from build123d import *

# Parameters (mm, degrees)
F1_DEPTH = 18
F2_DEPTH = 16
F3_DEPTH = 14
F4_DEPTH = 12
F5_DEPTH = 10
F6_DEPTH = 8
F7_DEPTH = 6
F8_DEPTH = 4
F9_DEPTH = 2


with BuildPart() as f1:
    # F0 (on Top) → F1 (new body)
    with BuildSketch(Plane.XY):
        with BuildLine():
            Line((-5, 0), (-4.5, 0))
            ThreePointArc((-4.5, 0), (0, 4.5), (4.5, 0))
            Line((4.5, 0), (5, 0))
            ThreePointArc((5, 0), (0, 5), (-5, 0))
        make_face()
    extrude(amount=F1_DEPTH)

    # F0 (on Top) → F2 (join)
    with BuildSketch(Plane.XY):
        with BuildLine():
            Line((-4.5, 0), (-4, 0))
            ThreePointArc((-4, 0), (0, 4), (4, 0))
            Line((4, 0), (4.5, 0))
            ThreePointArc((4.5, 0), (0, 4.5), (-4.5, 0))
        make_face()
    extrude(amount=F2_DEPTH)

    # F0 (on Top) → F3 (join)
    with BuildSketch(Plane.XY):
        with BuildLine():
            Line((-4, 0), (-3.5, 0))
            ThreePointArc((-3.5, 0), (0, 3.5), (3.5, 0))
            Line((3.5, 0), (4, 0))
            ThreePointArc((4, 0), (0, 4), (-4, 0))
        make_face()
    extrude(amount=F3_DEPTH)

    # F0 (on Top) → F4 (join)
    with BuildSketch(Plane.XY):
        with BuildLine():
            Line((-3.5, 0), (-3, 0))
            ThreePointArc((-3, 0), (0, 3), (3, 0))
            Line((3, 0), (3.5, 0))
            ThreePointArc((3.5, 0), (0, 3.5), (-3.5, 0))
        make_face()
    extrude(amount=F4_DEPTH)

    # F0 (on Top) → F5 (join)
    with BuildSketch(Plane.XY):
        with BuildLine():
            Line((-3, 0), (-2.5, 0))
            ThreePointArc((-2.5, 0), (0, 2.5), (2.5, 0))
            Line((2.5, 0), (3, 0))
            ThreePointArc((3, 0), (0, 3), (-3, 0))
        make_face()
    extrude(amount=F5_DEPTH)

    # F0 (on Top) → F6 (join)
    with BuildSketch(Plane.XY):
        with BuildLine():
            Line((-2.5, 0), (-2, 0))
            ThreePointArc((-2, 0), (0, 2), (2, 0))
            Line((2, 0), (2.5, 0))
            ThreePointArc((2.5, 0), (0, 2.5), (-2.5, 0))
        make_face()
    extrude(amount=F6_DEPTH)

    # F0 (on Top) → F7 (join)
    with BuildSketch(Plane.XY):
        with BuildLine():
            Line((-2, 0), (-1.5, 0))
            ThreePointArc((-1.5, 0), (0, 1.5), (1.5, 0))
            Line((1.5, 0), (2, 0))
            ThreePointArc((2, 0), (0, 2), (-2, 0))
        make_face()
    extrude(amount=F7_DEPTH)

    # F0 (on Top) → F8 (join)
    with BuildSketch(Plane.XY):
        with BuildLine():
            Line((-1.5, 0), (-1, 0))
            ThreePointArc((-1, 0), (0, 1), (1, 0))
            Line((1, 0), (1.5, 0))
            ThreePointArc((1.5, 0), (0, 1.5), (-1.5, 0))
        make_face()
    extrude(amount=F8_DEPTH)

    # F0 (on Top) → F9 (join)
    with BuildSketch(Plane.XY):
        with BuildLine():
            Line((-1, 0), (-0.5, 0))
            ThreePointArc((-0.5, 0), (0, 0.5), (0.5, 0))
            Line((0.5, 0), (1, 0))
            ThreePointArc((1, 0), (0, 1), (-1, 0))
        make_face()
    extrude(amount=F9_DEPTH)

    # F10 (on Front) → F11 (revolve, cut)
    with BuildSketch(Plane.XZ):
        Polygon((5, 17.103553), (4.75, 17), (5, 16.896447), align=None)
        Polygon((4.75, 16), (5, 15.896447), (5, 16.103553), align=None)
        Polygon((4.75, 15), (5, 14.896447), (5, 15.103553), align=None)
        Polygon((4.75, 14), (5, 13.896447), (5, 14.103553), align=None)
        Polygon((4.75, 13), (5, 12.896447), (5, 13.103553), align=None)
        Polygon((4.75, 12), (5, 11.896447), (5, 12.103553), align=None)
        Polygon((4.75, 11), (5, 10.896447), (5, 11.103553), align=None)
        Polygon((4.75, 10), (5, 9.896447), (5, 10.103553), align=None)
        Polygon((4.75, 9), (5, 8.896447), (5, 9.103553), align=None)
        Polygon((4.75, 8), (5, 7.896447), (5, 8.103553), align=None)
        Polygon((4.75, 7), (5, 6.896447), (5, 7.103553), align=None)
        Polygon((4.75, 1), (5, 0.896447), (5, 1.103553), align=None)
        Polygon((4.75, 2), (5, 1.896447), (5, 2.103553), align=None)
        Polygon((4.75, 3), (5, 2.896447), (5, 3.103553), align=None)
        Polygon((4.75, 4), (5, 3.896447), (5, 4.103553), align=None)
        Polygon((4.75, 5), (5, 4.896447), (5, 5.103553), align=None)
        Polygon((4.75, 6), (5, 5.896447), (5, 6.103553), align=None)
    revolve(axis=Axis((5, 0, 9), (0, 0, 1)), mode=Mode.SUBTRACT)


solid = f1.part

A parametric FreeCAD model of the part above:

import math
import FreeCAD as App
import Part
import Sketcher
from FreeCAD import Vector
Q = App.Units.Quantity

doc = App.newDocument("Part")
body = doc.addObject("PartDesign::Body", "Body")

# Sketch on XY plane
sketch1 = body.newObject("Sketcher::SketchObject", "Sketch")
sketch1.AttachmentSupport = (doc.getObject("XY_Plane"), [""])
sketch1.MapMode = "FlatFace"
sketch1.addGeometry(Part.LineSegment(Vector(-5, 0, 0), Vector(-4.5, 0, 0)), False)
sketch1.addGeometry(Part.ArcOfCircle(Part.Circle(Vector(0, 0, 0), Vector(0, 0, 1), 4.5), math.radians(0), math.radians(180)), False)
sketch1.addGeometry(Part.LineSegment(Vector(4.5, 0, 0), Vector(5, 0, 0)), False)
sketch1.addGeometry(Part.ArcOfCircle(Part.Circle(Vector(0, 0, 0), Vector(0, 0, 1), 5), math.radians(0), math.radians(180)), False)
sketch1.addConstraint(Sketcher.Constraint("Coincident", 0, 2, 1, 2))
sketch1.addConstraint(Sketcher.Constraint("Coincident", 1, 1, 2, 1))
sketch1.addConstraint(Sketcher.Constraint("Coincident", 2, 2, 3, 1))
sketch1.addConstraint(Sketcher.Constraint("Coincident", 3, 2, 0, 1))
sketch1.addConstraint(Sketcher.Constraint("Horizontal", 0))
sketch1.addConstraint(Sketcher.Constraint("Horizontal", 2))
sketch1.addConstraint(Sketcher.Constraint("Coincident", 1, 3, -1, 1))
sketch1.addConstraint(Sketcher.Constraint("Coincident", 3, 3, -1, 1))
sketch1.addConstraint(Sketcher.Constraint("PointOnObject", 0, 2, -1))
sketch1.addConstraint(Sketcher.Constraint("PointOnObject", 1, 1, -1))
sketch1.addConstraint(Sketcher.Constraint("Radius", 3, Q("5 mm")))
sketch1.addConstraint(Sketcher.Constraint("Radius", 1, Q("4.5 mm")))
pad1 = body.newObject("PartDesign::Pad", "Pad")
pad1.Profile = sketch1
pad1.Length = 18

# Sketch on XY plane
sketch2 = body.newObject("Sketcher::SketchObject", "Sketch001")
sketch2.AttachmentSupport = (doc.getObject("XY_Plane"), [""])
sketch2.MapMode = "FlatFace"
sketch2.addGeometry(Part.LineSegment(Vector(-4.5, 0, 0), Vector(-4, 0, 0)), False)
sketch2.addGeometry(Part.ArcOfCircle(Part.Circle(Vector(0, 0, 0), Vector(0, 0, 1), 4), math.radians(0), math.radians(180)), False)
sketch2.addGeometry(Part.LineSegment(Vector(4, 0, 0), Vector(4.5, 0, 0)), False)
sketch2.addGeometry(Part.ArcOfCircle(Part.Circle(Vector(0, 0, 0), Vector(0, 0, 1), 4.5), math.radians(0), math.radians(180)), False)
sketch2.addConstraint(Sketcher.Constraint("Coincident", 0, 2, 1, 2))
sketch2.addConstraint(Sketcher.Constraint("Coincident", 1, 1, 2, 1))
sketch2.addConstraint(Sketcher.Constraint("Coincident", 2, 2, 3, 1))
sketch2.addConstraint(Sketcher.Constraint("Coincident", 3, 2, 0, 1))
sketch2.addConstraint(Sketcher.Constraint("Horizontal", 0))
sketch2.addConstraint(Sketcher.Constraint("Horizontal", 2))
sketch2.addConstraint(Sketcher.Constraint("Coincident", 1, 3, -1, 1))
sketch2.addConstraint(Sketcher.Constraint("Coincident", 3, 3, -1, 1))
sketch2.addConstraint(Sketcher.Constraint("PointOnObject", 0, 2, -1))
sketch2.addConstraint(Sketcher.Constraint("PointOnObject", 1, 1, -1))
sketch2.addConstraint(Sketcher.Constraint("Radius", 1, Q("4 mm")))
sketch2.addConstraint(Sketcher.Constraint("Radius", 3, Q("4.5 mm")))
pad2 = body.newObject("PartDesign::Pad", "Pad001")
pad2.Profile = sketch2
pad2.Length = 16

# Sketch on XY plane
sketch3 = body.newObject("Sketcher::SketchObject", "Sketch002")
sketch3.AttachmentSupport = (doc.getObject("XY_Plane"), [""])
sketch3.MapMode = "FlatFace"
sketch3.addGeometry(Part.LineSegment(Vector(-4, 0, 0), Vector(-3.5, 0, 0)), False)
sketch3.addGeometry(Part.ArcOfCircle(Part.Circle(Vector(0, 0, 0), Vector(0, 0, 1), 3.5), math.radians(0), math.radians(180)), False)
sketch3.addGeometry(Part.LineSegment(Vector(3.5, 0, 0), Vector(4, 0, 0)), False)
sketch3.addGeometry(Part.ArcOfCircle(Part.Circle(Vector(0, 0, 0), Vector(0, 0, 1), 4), math.radians(0), math.radians(180)), False)
sketch3.addConstraint(Sketcher.Constraint("Coincident", 0, 2, 1, 2))
sketch3.addConstraint(Sketcher.Constraint("Coincident", 1, 1, 2, 1))
sketch3.addConstraint(Sketcher.Constraint("Coincident", 2, 2, 3, 1))
sketch3.addConstraint(Sketcher.Constraint("Coincident", 3, 2, 0, 1))
sketch3.addConstraint(Sketcher.Constraint("Horizontal", 0))
sketch3.addConstraint(Sketcher.Constraint("Horizontal", 2))
sketch3.addConstraint(Sketcher.Constraint("Coincident", 1, 3, -1, 1))
sketch3.addConstraint(Sketcher.Constraint("Coincident", 3, 3, -1, 1))
sketch3.addConstraint(Sketcher.Constraint("PointOnObject", 0, 2, -1))
sketch3.addConstraint(Sketcher.Constraint("PointOnObject", 1, 1, -1))
sketch3.addConstraint(Sketcher.Constraint("Radius", 3, Q("4 mm")))
sketch3.addConstraint(Sketcher.Constraint("Radius", 1, Q("3.5 mm")))
pad3 = body.newObject("PartDesign::Pad", "Pad002")
pad3.Profile = sketch3
pad3.Length = 14

# Sketch on XY plane
sketch4 = body.newObject("Sketcher::SketchObject", "Sketch003")
sketch4.AttachmentSupport = (doc.getObject("XY_Plane"), [""])
sketch4.MapMode = "FlatFace"
sketch4.addGeometry(Part.LineSegment(Vector(-3.5, 0, 0), Vector(-3, 0, 0)), False)
sketch4.addGeometry(Part.ArcOfCircle(Part.Circle(Vector(0, 0, 0), Vector(0, 0, 1), 3), math.radians(0), math.radians(180)), False)
sketch4.addGeometry(Part.LineSegment(Vector(3, 0, 0), Vector(3.5, 0, 0)), False)
sketch4.addGeometry(Part.ArcOfCircle(Part.Circle(Vector(0, 0, 0), Vector(0, 0, 1), 3.5), math.radians(0), math.radians(180)), False)
sketch4.addConstraint(Sketcher.Constraint("Coincident", 0, 2, 1, 2))
sketch4.addConstraint(Sketcher.Constraint("Coincident", 1, 1, 2, 1))
sketch4.addConstraint(Sketcher.Constraint("Coincident", 2, 2, 3, 1))
sketch4.addConstraint(Sketcher.Constraint("Coincident", 3, 2, 0, 1))
sketch4.addConstraint(Sketcher.Constraint("Horizontal", 0))
sketch4.addConstraint(Sketcher.Constraint("Horizontal", 2))
sketch4.addConstraint(Sketcher.Constraint("Coincident", 1, 3, -1, 1))
sketch4.addConstraint(Sketcher.Constraint("Coincident", 3, 3, -1, 1))
sketch4.addConstraint(Sketcher.Constraint("PointOnObject", 0, 2, -1))
sketch4.addConstraint(Sketcher.Constraint("PointOnObject", 1, 1, -1))
sketch4.addConstraint(Sketcher.Constraint("Radius", 1, Q("3 mm")))
sketch4.addConstraint(Sketcher.Constraint("Radius", 3, Q("3.5 mm")))
pad4 = body.newObject("PartDesign::Pad", "Pad003")
pad4.Profile = sketch4
pad4.Length = 12

# Sketch on XY plane
sketch5 = body.newObject("Sketcher::SketchObject", "Sketch004")
sketch5.AttachmentSupport = (doc.getObject("XY_Plane"), [""])
sketch5.MapMode = "FlatFace"
sketch5.addGeometry(Part.LineSegment(Vector(-3, 0, 0), Vector(-2.5, 0, 0)), False)
sketch5.addGeometry(Part.ArcOfCircle(Part.Circle(Vector(0, 0, 0), Vector(0, 0, 1), 2.5), math.radians(0), math.radians(180)), False)
sketch5.addGeometry(Part.LineSegment(Vector(2.5, 0, 0), Vector(3, 0, 0)), False)
sketch5.addGeometry(Part.ArcOfCircle(Part.Circle(Vector(0, 0, 0), Vector(0, 0, 1), 3), math.radians(0), math.radians(180)), False)
sketch5.addConstraint(Sketcher.Constraint("Coincident", 0, 2, 1, 2))
sketch5.addConstraint(Sketcher.Constraint("Coincident", 1, 1, 2, 1))
sketch5.addConstraint(Sketcher.Constraint("Coincident", 2, 2, 3, 1))
sketch5.addConstraint(Sketcher.Constraint("Coincident", 3, 2, 0, 1))
sketch5.addConstraint(Sketcher.Constraint("Horizontal", 0))
sketch5.addConstraint(Sketcher.Constraint("Horizontal", 2))
sketch5.addConstraint(Sketcher.Constraint("Coincident", 1, 3, -1, 1))
sketch5.addConstraint(Sketcher.Constraint("Coincident", 3, 3, -1, 1))
sketch5.addConstraint(Sketcher.Constraint("PointOnObject", 0, 2, -1))
sketch5.addConstraint(Sketcher.Constraint("PointOnObject", 1, 1, -1))
sketch5.addConstraint(Sketcher.Constraint("Radius", 3, Q("3 mm")))
sketch5.addConstraint(Sketcher.Constraint("Radius", 1, Q("2.5 mm")))
pad5 = body.newObject("PartDesign::Pad", "Pad004")
pad5.Profile = sketch5
pad5.Length = 10

# Sketch on XY plane
sketch6 = body.newObject("Sketcher::SketchObject", "Sketch005")
sketch6.AttachmentSupport = (doc.getObject("XY_Plane"), [""])
sketch6.MapMode = "FlatFace"
sketch6.addGeometry(Part.LineSegment(Vector(-2.5, 0, 0), Vector(-2, 0, 0)), False)
sketch6.addGeometry(Part.ArcOfCircle(Part.Circle(Vector(0, 0, 0), Vector(0, 0, 1), 2), math.radians(0), math.radians(180)), False)
sketch6.addGeometry(Part.LineSegment(Vector(2, 0, 0), Vector(2.5, 0, 0)), False)
sketch6.addGeometry(Part.ArcOfCircle(Part.Circle(Vector(0, 0, 0), Vector(0, 0, 1), 2.5), math.radians(0), math.radians(180)), False)
sketch6.addConstraint(Sketcher.Constraint("Coincident", 0, 2, 1, 2))
sketch6.addConstraint(Sketcher.Constraint("Coincident", 1, 1, 2, 1))
sketch6.addConstraint(Sketcher.Constraint("Coincident", 2, 2, 3, 1))
sketch6.addConstraint(Sketcher.Constraint("Coincident", 3, 2, 0, 1))
sketch6.addConstraint(Sketcher.Constraint("Horizontal", 0))
sketch6.addConstraint(Sketcher.Constraint("Horizontal", 2))
sketch6.addConstraint(Sketcher.Constraint("Coincident", 1, 3, -1, 1))
sketch6.addConstraint(Sketcher.Constraint("Coincident", 3, 3, -1, 1))
sketch6.addConstraint(Sketcher.Constraint("PointOnObject", 0, 2, -1))
sketch6.addConstraint(Sketcher.Constraint("PointOnObject", 1, 1, -1))
sketch6.addConstraint(Sketcher.Constraint("Radius", 1, Q("2 mm")))
sketch6.addConstraint(Sketcher.Constraint("Radius", 3, Q("2.5 mm")))
pad6 = body.newObject("PartDesign::Pad", "Pad005")
pad6.Profile = sketch6
pad6.Length = 8

# Sketch on XY plane
sketch7 = body.newObject("Sketcher::SketchObject", "Sketch006")
sketch7.AttachmentSupport = (doc.getObject("XY_Plane"), [""])
sketch7.MapMode = "FlatFace"
sketch7.addGeometry(Part.LineSegment(Vector(-2, 0, 0), Vector(-1.5, 0, 0)), False)
sketch7.addGeometry(Part.ArcOfCircle(Part.Circle(Vector(0, 0, 0), Vector(0, 0, 1), 1.5), math.radians(0), math.radians(180)), False)
sketch7.addGeometry(Part.LineSegment(Vector(1.5, 0, 0), Vector(2, 0, 0)), False)
sketch7.addGeometry(Part.ArcOfCircle(Part.Circle(Vector(0, 0, 0), Vector(0, 0, 1), 2), math.radians(0), math.radians(180)), False)
sketch7.addConstraint(Sketcher.Constraint("Coincident", 0, 2, 1, 2))
sketch7.addConstraint(Sketcher.Constraint("Coincident", 1, 1, 2, 1))
sketch7.addConstraint(Sketcher.Constraint("Coincident", 2, 2, 3, 1))
sketch7.addConstraint(Sketcher.Constraint("Coincident", 3, 2, 0, 1))
sketch7.addConstraint(Sketcher.Constraint("Horizontal", 0))
sketch7.addConstraint(Sketcher.Constraint("Horizontal", 2))
sketch7.addConstraint(Sketcher.Constraint("Coincident", 1, 3, -1, 1))
sketch7.addConstraint(Sketcher.Constraint("Coincident", 3, 3, -1, 1))
sketch7.addConstraint(Sketcher.Constraint("PointOnObject", 0, 2, -1))
sketch7.addConstraint(Sketcher.Constraint("PointOnObject", 1, 1, -1))
sketch7.addConstraint(Sketcher.Constraint("Radius", 3, Q("2 mm")))
sketch7.addConstraint(Sketcher.Constraint("Radius", 1, Q("1.5 mm")))
pad7 = body.newObject("PartDesign::Pad", "Pad006")
pad7.Profile = sketch7
pad7.Length = 6

# Sketch on XY plane
sketch8 = body.newObject("Sketcher::SketchObject", "Sketch007")
sketch8.AttachmentSupport = (doc.getObject("XY_Plane"), [""])
sketch8.MapMode = "FlatFace"
sketch8.addGeometry(Part.LineSegment(Vector(-1.5, 0, 0), Vector(-1, 0, 0)), False)
sketch8.addGeometry(Part.ArcOfCircle(Part.Circle(Vector(0, 0, 0), Vector(0, 0, 1), 1), math.radians(0), math.radians(180)), False)
sketch8.addGeometry(Part.LineSegment(Vector(1, 0, 0), Vector(1.5, 0, 0)), False)
sketch8.addGeometry(Part.ArcOfCircle(Part.Circle(Vector(0, 0, 0), Vector(0, 0, 1), 1.5), math.radians(0), math.radians(180)), False)
sketch8.addConstraint(Sketcher.Constraint("Coincident", 0, 2, 1, 2))
sketch8.addConstraint(Sketcher.Constraint("Coincident", 1, 1, 2, 1))
sketch8.addConstraint(Sketcher.Constraint("Coincident", 2, 2, 3, 1))
sketch8.addConstraint(Sketcher.Constraint("Coincident", 3, 2, 0, 1))
sketch8.addConstraint(Sketcher.Constraint("Horizontal", 0))
sketch8.addConstraint(Sketcher.Constraint("Horizontal", 2))
sketch8.addConstraint(Sketcher.Constraint("Coincident", 1, 3, -1, 1))
sketch8.addConstraint(Sketcher.Constraint("Coincident", 3, 3, -1, 1))
sketch8.addConstraint(Sketcher.Constraint("PointOnObject", 0, 2, -1))
sketch8.addConstraint(Sketcher.Constraint("PointOnObject", 1, 1, -1))
sketch8.addConstraint(Sketcher.Constraint("Radius", 1, Q("1 mm")))
sketch8.addConstraint(Sketcher.Constraint("Radius", 3, Q("1.5 mm")))
pad8 = body.newObject("PartDesign::Pad", "Pad007")
pad8.Profile = sketch8
pad8.Length = 4

# Sketch on XY plane
sketch9 = body.newObject("Sketcher::SketchObject", "Sketch008")
sketch9.AttachmentSupport = (doc.getObject("XY_Plane"), [""])
sketch9.MapMode = "FlatFace"
sketch9.addGeometry(Part.LineSegment(Vector(-1, 0, 0), Vector(-0.5, 0, 0)), False)
sketch9.addGeometry(Part.ArcOfCircle(Part.Circle(Vector(0, 0, 0), Vector(0, 0, 1), 0.5), math.radians(0), math.radians(180)), False)
sketch9.addGeometry(Part.LineSegment(Vector(0.5, 0, 0), Vector(1, 0, 0)), False)
sketch9.addGeometry(Part.ArcOfCircle(Part.Circle(Vector(0, 0, 0), Vector(0, 0, 1), 1), math.radians(0), math.radians(180)), False)
sketch9.addConstraint(Sketcher.Constraint("Coincident", 0, 2, 1, 2))
sketch9.addConstraint(Sketcher.Constraint("Coincident", 1, 1, 2, 1))
sketch9.addConstraint(Sketcher.Constraint("Coincident", 2, 2, 3, 1))
sketch9.addConstraint(Sketcher.Constraint("Coincident", 3, 2, 0, 1))
sketch9.addConstraint(Sketcher.Constraint("Horizontal", 0))
sketch9.addConstraint(Sketcher.Constraint("Horizontal", 2))
sketch9.addConstraint(Sketcher.Constraint("Coincident", 1, 3, -1, 1))
sketch9.addConstraint(Sketcher.Constraint("Coincident", 3, 3, -1, 1))
sketch9.addConstraint(Sketcher.Constraint("PointOnObject", 0, 2, -1))
sketch9.addConstraint(Sketcher.Constraint("PointOnObject", 1, 1, -1))
sketch9.addConstraint(Sketcher.Constraint("Radius", 3, Q("1 mm")))
sketch9.addConstraint(Sketcher.Constraint("Radius", 1, Q("0.5 mm")))
pad9 = body.newObject("PartDesign::Pad", "Pad008")
pad9.Profile = sketch9
pad9.Length = 2

# Sketch on XZ plane
sketch10 = body.newObject("Sketcher::SketchObject", "Sketch009")
sketch10.AttachmentSupport = (doc.getObject("XZ_Plane"), [""])
sketch10.MapMode = "FlatFace"
sketch10.addGeometry(Part.LineSegment(Vector(5, 17.1, 0), Vector(4.75, 17, 0)), False)
sketch10.addGeometry(Part.LineSegment(Vector(4.75, 17, 0), Vector(5, 16.9, 0)), False)
sketch10.addGeometry(Part.LineSegment(Vector(5, 16.9, 0), Vector(5, 17.1, 0)), False)
sketch10.addGeometry(Part.LineSegment(Vector(4.75, 16, 0), Vector(5, 15.9, 0)), False)
sketch10.addGeometry(Part.LineSegment(Vector(5, 15.9, 0), Vector(5, 16.1, 0)), False)
sketch10.addGeometry(Part.LineSegment(Vector(5, 16.1, 0), Vector(4.75, 16, 0)), False)
sketch10.addGeometry(Part.LineSegment(Vector(4.75, 15, 0), Vector(5, 14.9, 0)), False)
sketch10.addGeometry(Part.LineSegment(Vector(5, 14.9, 0), Vector(5, 15.1, 0)), False)
sketch10.addGeometry(Part.LineSegment(Vector(5, 15.1, 0), Vector(4.75, 15, 0)), False)
sketch10.addGeometry(Part.LineSegment(Vector(4.75, 14, 0), Vector(5, 13.9, 0)), False)
sketch10.addGeometry(Part.LineSegment(Vector(5, 13.9, 0), Vector(5, 14.1, 0)), False)
sketch10.addGeometry(Part.LineSegment(Vector(5, 14.1, 0), Vector(4.75, 14, 0)), False)
sketch10.addGeometry(Part.LineSegment(Vector(4.75, 13, 0), Vector(5, 12.9, 0)), False)
sketch10.addGeometry(Part.LineSegment(Vector(5, 12.9, 0), Vector(5, 13.1, 0)), False)
sketch10.addGeometry(Part.LineSegment(Vector(5, 13.1, 0), Vector(4.75, 13, 0)), False)
sketch10.addGeometry(Part.LineSegment(Vector(4.75, 12, 0), Vector(5, 11.9, 0)), False)
sketch10.addGeometry(Part.LineSegment(Vector(5, 11.9, 0), Vector(5, 12.1, 0)), False)
sketch10.addGeometry(Part.LineSegment(Vector(5, 12.1, 0), Vector(4.75, 12, 0)), False)
sketch10.addGeometry(Part.LineSegment(Vector(4.75, 11, 0), Vector(5, 10.9, 0)), False)
sketch10.addGeometry(Part.LineSegment(Vector(5, 10.9, 0), Vector(5, 11.1, 0)), False)
sketch10.addGeometry(Part.LineSegment(Vector(5, 11.1, 0), Vector(4.75, 11, 0)), False)
sketch10.addGeometry(Part.LineSegment(Vector(4.75, 10, 0), Vector(5, 9.9, 0)), False)
sketch10.addGeometry(Part.LineSegment(Vector(5, 9.9, 0), Vector(5, 10.1, 0)), False)
sketch10.addGeometry(Part.LineSegment(Vector(5, 10.1, 0), Vector(4.75, 10, 0)), False)
sketch10.addGeometry(Part.LineSegment(Vector(4.75, 9, 0), Vector(5, 8.9, 0)), False)
sketch10.addGeometry(Part.LineSegment(Vector(5, 8.9, 0), Vector(5, 9.1, 0)), False)
sketch10.addGeometry(Part.LineSegment(Vector(5, 9.1, 0), Vector(4.75, 9, 0)), False)
sketch10.addGeometry(Part.LineSegment(Vector(4.75, 8, 0), Vector(5, 7.9, 0)), False)
sketch10.addGeometry(Part.LineSegment(Vector(5, 7.9, 0), Vector(5, 8.1, 0)), False)
sketch10.addGeometry(Part.LineSegment(Vector(5, 8.1, 0), Vector(4.75, 8, 0)), False)
sketch10.addGeometry(Part.LineSegment(Vector(4.75, 7, 0), Vector(5, 6.9, 0)), False)
sketch10.addGeometry(Part.LineSegment(Vector(5, 6.9, 0), Vector(5, 7.1, 0)), False)
sketch10.addGeometry(Part.LineSegment(Vector(5, 7.1, 0), Vector(4.75, 7, 0)), False)
sketch10.addGeometry(Part.LineSegment(Vector(4.75, 1, 0), Vector(5, 0.9, 0)), False)
sketch10.addGeometry(Part.LineSegment(Vector(5, 0.9, 0), Vector(5, 1.1, 0)), False)
sketch10.addGeometry(Part.LineSegment(Vector(5, 1.1, 0), Vector(4.75, 1, 0)), False)
sketch10.addGeometry(Part.LineSegment(Vector(4.75, 2, 0), Vector(5, 1.9, 0)), False)
sketch10.addGeometry(Part.LineSegment(Vector(5, 1.9, 0), Vector(5, 2.1, 0)), False)
sketch10.addGeometry(Part.LineSegment(Vector(5, 2.1, 0), Vector(4.75, 2, 0)), False)
sketch10.addGeometry(Part.LineSegment(Vector(4.75, 3, 0), Vector(5, 2.9, 0)), False)
sketch10.addGeometry(Part.LineSegment(Vector(5, 2.9, 0), Vector(5, 3.1, 0)), False)
sketch10.addGeometry(Part.LineSegment(Vector(5, 3.1, 0), Vector(4.75, 3, 0)), False)
sketch10.addGeometry(Part.LineSegment(Vector(4.75, 4, 0), Vector(5, 3.9, 0)), False)
sketch10.addGeometry(Part.LineSegment(Vector(5, 3.9, 0), Vector(5, 4.1, 0)), False)
sketch10.addGeometry(Part.LineSegment(Vector(5, 4.1, 0), Vector(4.75, 4, 0)), False)
sketch10.addGeometry(Part.LineSegment(Vector(4.75, 5, 0), Vector(5, 4.9, 0)), False)
sketch10.addGeometry(Part.LineSegment(Vector(5, 4.9, 0), Vector(5, 5.1, 0)), False)
sketch10.addGeometry(Part.LineSegment(Vector(5, 5.1, 0), Vector(4.75, 5, 0)), False)
sketch10.addGeometry(Part.LineSegment(Vector(4.75, 6, 0), Vector(5, 5.9, 0)), False)
sketch10.addGeometry(Part.LineSegment(Vector(5, 5.9, 0), Vector(5, 6.1, 0)), False)
sketch10.addGeometry(Part.LineSegment(Vector(5, 6.1, 0), Vector(4.75, 6, 0)), False)
sketch10.addGeometry(Part.LineSegment(Vector(5, 0.9, 0), Vector(5, 17.1, 0)), True)  # axis
sketch10.addConstraint(Sketcher.Constraint("Coincident", 0, 2, 1, 1))
sketch10.addConstraint(Sketcher.Constraint("Coincident", 1, 2, 2, 1))
sketch10.addConstraint(Sketcher.Constraint("Coincident", 2, 2, 0, 1))
sketch10.addConstraint(Sketcher.Constraint("Coincident", 3, 2, 4, 1))
sketch10.addConstraint(Sketcher.Constraint("Coincident", 4, 2, 5, 1))
sketch10.addConstraint(Sketcher.Constraint("Coincident", 5, 2, 3, 1))
sketch10.addConstraint(Sketcher.Constraint("Coincident", 6, 2, 7, 1))
sketch10.addConstraint(Sketcher.Constraint("Coincident", 7, 2, 8, 1))
sketch10.addConstraint(Sketcher.Constraint("Coincident", 8, 2, 6, 1))
sketch10.addConstraint(Sketcher.Constraint("Coincident", 9, 2, 10, 1))
sketch10.addConstraint(Sketcher.Constraint("Coincident", 10, 2, 11, 1))
sketch10.addConstraint(Sketcher.Constraint("Coincident", 11, 2, 9, 1))
sketch10.addConstraint(Sketcher.Constraint("Coincident", 12, 2, 13, 1))
sketch10.addConstraint(Sketcher.Constraint("Coincident", 13, 2, 14, 1))
sketch10.addConstraint(Sketcher.Constraint("Coincident", 14, 2, 12, 1))
sketch10.addConstraint(Sketcher.Constraint("Coincident", 15, 2, 16, 1))
sketch10.addConstraint(Sketcher.Constraint("Coincident", 16, 2, 17, 1))
sketch10.addConstraint(Sketcher.Constraint("Coincident", 17, 2, 15, 1))
sketch10.addConstraint(Sketcher.Constraint("Coincident", 18, 2, 19, 1))
sketch10.addConstraint(Sketcher.Constraint("Coincident", 19, 2, 20, 1))
sketch10.addConstraint(Sketcher.Constraint("Coincident", 20, 2, 18, 1))
sketch10.addConstraint(Sketcher.Constraint("Coincident", 21, 2, 22, 1))
sketch10.addConstraint(Sketcher.Constraint("Coincident", 22, 2, 23, 1))
sketch10.addConstraint(Sketcher.Constraint("Coincident", 23, 2, 21, 1))
sketch10.addConstraint(Sketcher.Constraint("Coincident", 24, 2, 25, 1))
sketch10.addConstraint(Sketcher.Constraint("Coincident", 25, 2, 26, 1))
sketch10.addConstraint(Sketcher.Constraint("Coincident", 26, 2, 24, 1))
sketch10.addConstraint(Sketcher.Constraint("Coincident", 27, 2, 28, 1))
sketch10.addConstraint(Sketcher.Constraint("Coincident", 28, 2, 29, 1))
sketch10.addConstraint(Sketcher.Constraint("Coincident", 29, 2, 27, 1))
sketch10.addConstraint(Sketcher.Constraint("Coincident", 30, 2, 31, 1))
sketch10.addConstraint(Sketcher.Constraint("Coincident", 31, 2, 32, 1))
sketch10.addConstraint(Sketcher.Constraint("Coincident", 32, 2, 30, 1))
sketch10.addConstraint(Sketcher.Constraint("Coincident", 33, 2, 34, 1))
sketch10.addConstraint(Sketcher.Constraint("Coincident", 34, 2, 35, 1))
sketch10.addConstraint(Sketcher.Constraint("Coincident", 35, 2, 33, 1))
sketch10.addConstraint(Sketcher.Constraint("Coincident", 36, 2, 37, 1))
sketch10.addConstraint(Sketcher.Constraint("Coincident", 37, 2, 38, 1))
sketch10.addConstraint(Sketcher.Constraint("Coincident", 38, 2, 36, 1))
sketch10.addConstraint(Sketcher.Constraint("Coincident", 39, 2, 40, 1))
sketch10.addConstraint(Sketcher.Constraint("Coincident", 40, 2, 41, 1))
sketch10.addConstraint(Sketcher.Constraint("Coincident", 41, 2, 39, 1))
sketch10.addConstraint(Sketcher.Constraint("Coincident", 42, 2, 43, 1))
sketch10.addConstraint(Sketcher.Constraint("Coincident", 43, 2, 44, 1))
sketch10.addConstraint(Sketcher.Constraint("Coincident", 44, 2, 42, 1))
sketch10.addConstraint(Sketcher.Constraint("Coincident", 45, 2, 46, 1))
sketch10.addConstraint(Sketcher.Constraint("Coincident", 46, 2, 47, 1))
sketch10.addConstraint(Sketcher.Constraint("Coincident", 47, 2, 45, 1))
sketch10.addConstraint(Sketcher.Constraint("Coincident", 48, 2, 49, 1))
sketch10.addConstraint(Sketcher.Constraint("Coincident", 49, 2, 50, 1))
sketch10.addConstraint(Sketcher.Constraint("Coincident", 50, 2, 48, 1))
sketch10.addConstraint(Sketcher.Constraint("Vertical", 2))
sketch10.addConstraint(Sketcher.Constraint("Vertical", 4))
sketch10.addConstraint(Sketcher.Constraint("Vertical", 7))
sketch10.addConstraint(Sketcher.Constraint("Vertical", 10))
sketch10.addConstraint(Sketcher.Constraint("Vertical", 13))
sketch10.addConstraint(Sketcher.Constraint("Vertical", 16))
sketch10.addConstraint(Sketcher.Constraint("Vertical", 19))
sketch10.addConstraint(Sketcher.Constraint("Vertical", 22))
sketch10.addConstraint(Sketcher.Constraint("Vertical", 25))
sketch10.addConstraint(Sketcher.Constraint("Vertical", 28))
sketch10.addConstraint(Sketcher.Constraint("Vertical", 31))
sketch10.addConstraint(Sketcher.Constraint("Vertical", 34))
sketch10.addConstraint(Sketcher.Constraint("Vertical", 37))
sketch10.addConstraint(Sketcher.Constraint("Vertical", 40))
sketch10.addConstraint(Sketcher.Constraint("Vertical", 43))
sketch10.addConstraint(Sketcher.Constraint("Vertical", 46))
sketch10.addConstraint(Sketcher.Constraint("Vertical", 49))
sketch10.addConstraint(Sketcher.Constraint("Vertical", 51))
sketch10.addConstraint(Sketcher.Constraint("Coincident", 51, 1, 33, 2))
sketch10.addConstraint(Sketcher.Constraint("Coincident", 51, 2, 2, 2))
sketch10.addConstraint(Sketcher.Constraint("Parallel", 1, 3))
sketch10.addConstraint(Sketcher.Constraint("Parallel", 0, 5))
sketch10.addConstraint(Sketcher.Constraint("Parallel", 3, 6))
sketch10.addConstraint(Sketcher.Constraint("Parallel", 5, 8))
sketch10.addConstraint(Sketcher.Constraint("Parallel", 6, 9))
sketch10.addConstraint(Sketcher.Constraint("Parallel", 8, 11))
sketch10.addConstraint(Sketcher.Constraint("Parallel", 9, 12))
sketch10.addConstraint(Sketcher.Constraint("Parallel", 11, 14))
sketch10.addConstraint(Sketcher.Constraint("Parallel", 12, 15))
sketch10.addConstraint(Sketcher.Constraint("Parallel", 14, 17))
sketch10.addConstraint(Sketcher.Constraint("Parallel", 15, 18))
sketch10.addConstraint(Sketcher.Constraint("Parallel", 17, 20))
sketch10.addConstraint(Sketcher.Constraint("Parallel", 18, 21))
sketch10.addConstraint(Sketcher.Constraint("Parallel", 20, 23))
sketch10.addConstraint(Sketcher.Constraint("Parallel", 21, 24))
sketch10.addConstraint(Sketcher.Constraint("Parallel", 23, 26))
sketch10.addConstraint(Sketcher.Constraint("Parallel", 24, 27))
sketch10.addConstraint(Sketcher.Constraint("Parallel", 26, 29))
sketch10.addConstraint(Sketcher.Constraint("Parallel", 27, 30))
sketch10.addConstraint(Sketcher.Constraint("Parallel", 29, 32))
sketch10.addConstraint(Sketcher.Constraint("Parallel", 30, 33))
sketch10.addConstraint(Sketcher.Constraint("Parallel", 32, 35))
sketch10.addConstraint(Sketcher.Constraint("Parallel", 33, 36))
sketch10.addConstraint(Sketcher.Constraint("Parallel", 35, 38))
sketch10.addConstraint(Sketcher.Constraint("Parallel", 36, 39))
sketch10.addConstraint(Sketcher.Constraint("Parallel", 38, 41))
sketch10.addConstraint(Sketcher.Constraint("Parallel", 39, 42))
sketch10.addConstraint(Sketcher.Constraint("Parallel", 41, 44))
sketch10.addConstraint(Sketcher.Constraint("Parallel", 42, 45))
sketch10.addConstraint(Sketcher.Constraint("Parallel", 44, 47))
sketch10.addConstraint(Sketcher.Constraint("Parallel", 45, 48))
sketch10.addConstraint(Sketcher.Constraint("Parallel", 47, 50))
sketch10.addConstraint(Sketcher.Constraint("Vertical", 2, 2, 3, 2))
sketch10.addConstraint(Sketcher.Constraint("Vertical", 0, 2, 5, 2))
sketch10.addConstraint(Sketcher.Constraint("Vertical", 4, 2, 6, 2))
sketch10.addConstraint(Sketcher.Constraint("Vertical", 5, 2, 8, 2))
sketch10.addConstraint(Sketcher.Constraint("Vertical", 7, 2, 9, 2))
sketch10.addConstraint(Sketcher.Constraint("Vertical", 8, 2, 11, 2))
sketch10.addConstraint(Sketcher.Constraint("Vertical", 10, 2, 12, 2))
sketch10.addConstraint(Sketcher.Constraint("Vertical", 11, 2, 14, 2))
sketch10.addConstraint(Sketcher.Constraint("Vertical", 13, 2, 15, 2))
sketch10.addConstraint(Sketcher.Constraint("Vertical", 14, 2, 17, 2))
sketch10.addConstraint(Sketcher.Constraint("Vertical", 16, 2, 18, 2))
sketch10.addConstraint(Sketcher.Constraint("Vertical", 17, 2, 20, 2))
sketch10.addConstraint(Sketcher.Constraint("Vertical", 19, 2, 21, 2))
sketch10.addConstraint(Sketcher.Constraint("Vertical", 20, 2, 23, 2))
sketch10.addConstraint(Sketcher.Constraint("Vertical", 22, 2, 24, 2))
sketch10.addConstraint(Sketcher.Constraint("Vertical", 23, 2, 26, 2))
sketch10.addConstraint(Sketcher.Constraint("Vertical", 25, 2, 27, 2))
sketch10.addConstraint(Sketcher.Constraint("Vertical", 26, 2, 29, 2))
sketch10.addConstraint(Sketcher.Constraint("Vertical", 28, 2, 30, 2))
sketch10.addConstraint(Sketcher.Constraint("Vertical", 29, 2, 32, 2))
sketch10.addConstraint(Sketcher.Constraint("Vertical", 32, 2, 35, 2))
sketch10.addConstraint(Sketcher.Constraint("Vertical", 34, 2, 36, 2))
sketch10.addConstraint(Sketcher.Constraint("Vertical", 35, 2, 38, 2))
sketch10.addConstraint(Sketcher.Constraint("Vertical", 37, 2, 39, 2))
sketch10.addConstraint(Sketcher.Constraint("Vertical", 38, 2, 41, 2))
sketch10.addConstraint(Sketcher.Constraint("Vertical", 40, 2, 42, 2))
sketch10.addConstraint(Sketcher.Constraint("Vertical", 41, 2, 44, 2))
sketch10.addConstraint(Sketcher.Constraint("Vertical", 43, 2, 45, 2))
sketch10.addConstraint(Sketcher.Constraint("Vertical", 44, 2, 47, 2))
sketch10.addConstraint(Sketcher.Constraint("Vertical", 46, 2, 48, 2))
sketch10.addConstraint(Sketcher.Constraint("Vertical", 47, 2, 50, 2))
sketch10.addConstraint(Sketcher.Constraint("Equal", 0, 1))
sketch10.addConstraint(Sketcher.Constraint("DistanceY", -1, 1, 0, 2, Q("17 mm")))
sketch10.addConstraint(Sketcher.Constraint("DistanceX", -1, 1, 1, 2, Q("5 mm")))
sketch10.addConstraint(Sketcher.Constraint("DistanceY", -1, 1, 5, 2, Q("16 mm")))
sketch10.addConstraint(Sketcher.Constraint("DistanceY", -1, 1, 8, 2, Q("15 mm")))
sketch10.addConstraint(Sketcher.Constraint("DistanceY", -1, 1, 11, 2, Q("14 mm")))
sketch10.addConstraint(Sketcher.Constraint("DistanceY", -1, 1, 14, 2, Q("13 mm")))
sketch10.addConstraint(Sketcher.Constraint("DistanceY", -1, 1, 17, 2, Q("12 mm")))
sketch10.addConstraint(Sketcher.Constraint("DistanceY", -1, 1, 20, 2, Q("11 mm")))
sketch10.addConstraint(Sketcher.Constraint("DistanceY", -1, 1, 23, 2, Q("10 mm")))
sketch10.addConstraint(Sketcher.Constraint("DistanceY", -1, 1, 26, 2, Q("9 mm")))
sketch10.addConstraint(Sketcher.Constraint("DistanceY", -1, 1, 29, 2, Q("8 mm")))
sketch10.addConstraint(Sketcher.Constraint("DistanceY", -1, 1, 32, 2, Q("7 mm")))
sketch10.addConstraint(Sketcher.Constraint("DistanceY", -1, 1, 35, 2, Q("1 mm")))
sketch10.addConstraint(Sketcher.Constraint("DistanceY", -1, 1, 38, 2, Q("2 mm")))
sketch10.addConstraint(Sketcher.Constraint("DistanceY", -1, 1, 41, 2, Q("3 mm")))
sketch10.addConstraint(Sketcher.Constraint("DistanceY", -1, 1, 44, 2, Q("4 mm")))
sketch10.addConstraint(Sketcher.Constraint("DistanceY", -1, 1, 47, 2, Q("5 mm")))
sketch10.addConstraint(Sketcher.Constraint("DistanceY", -1, 1, 50, 2, Q("6 mm")))
sketch10.addConstraint(Sketcher.Constraint("DistanceX", -1, 1, 0, 2, Q("4.75 mm")))
sketch10.addConstraint(Sketcher.Constraint("DistanceY", 2, 1, 2, 2, Q("0.207106 mm")))
groove = body.newObject("PartDesign::Groove", "Groove")
groove.Profile = sketch10
groove.ReferenceAxis = (sketch10, ["Axis0"])
groove.Angle = 360

doc.recompute()
